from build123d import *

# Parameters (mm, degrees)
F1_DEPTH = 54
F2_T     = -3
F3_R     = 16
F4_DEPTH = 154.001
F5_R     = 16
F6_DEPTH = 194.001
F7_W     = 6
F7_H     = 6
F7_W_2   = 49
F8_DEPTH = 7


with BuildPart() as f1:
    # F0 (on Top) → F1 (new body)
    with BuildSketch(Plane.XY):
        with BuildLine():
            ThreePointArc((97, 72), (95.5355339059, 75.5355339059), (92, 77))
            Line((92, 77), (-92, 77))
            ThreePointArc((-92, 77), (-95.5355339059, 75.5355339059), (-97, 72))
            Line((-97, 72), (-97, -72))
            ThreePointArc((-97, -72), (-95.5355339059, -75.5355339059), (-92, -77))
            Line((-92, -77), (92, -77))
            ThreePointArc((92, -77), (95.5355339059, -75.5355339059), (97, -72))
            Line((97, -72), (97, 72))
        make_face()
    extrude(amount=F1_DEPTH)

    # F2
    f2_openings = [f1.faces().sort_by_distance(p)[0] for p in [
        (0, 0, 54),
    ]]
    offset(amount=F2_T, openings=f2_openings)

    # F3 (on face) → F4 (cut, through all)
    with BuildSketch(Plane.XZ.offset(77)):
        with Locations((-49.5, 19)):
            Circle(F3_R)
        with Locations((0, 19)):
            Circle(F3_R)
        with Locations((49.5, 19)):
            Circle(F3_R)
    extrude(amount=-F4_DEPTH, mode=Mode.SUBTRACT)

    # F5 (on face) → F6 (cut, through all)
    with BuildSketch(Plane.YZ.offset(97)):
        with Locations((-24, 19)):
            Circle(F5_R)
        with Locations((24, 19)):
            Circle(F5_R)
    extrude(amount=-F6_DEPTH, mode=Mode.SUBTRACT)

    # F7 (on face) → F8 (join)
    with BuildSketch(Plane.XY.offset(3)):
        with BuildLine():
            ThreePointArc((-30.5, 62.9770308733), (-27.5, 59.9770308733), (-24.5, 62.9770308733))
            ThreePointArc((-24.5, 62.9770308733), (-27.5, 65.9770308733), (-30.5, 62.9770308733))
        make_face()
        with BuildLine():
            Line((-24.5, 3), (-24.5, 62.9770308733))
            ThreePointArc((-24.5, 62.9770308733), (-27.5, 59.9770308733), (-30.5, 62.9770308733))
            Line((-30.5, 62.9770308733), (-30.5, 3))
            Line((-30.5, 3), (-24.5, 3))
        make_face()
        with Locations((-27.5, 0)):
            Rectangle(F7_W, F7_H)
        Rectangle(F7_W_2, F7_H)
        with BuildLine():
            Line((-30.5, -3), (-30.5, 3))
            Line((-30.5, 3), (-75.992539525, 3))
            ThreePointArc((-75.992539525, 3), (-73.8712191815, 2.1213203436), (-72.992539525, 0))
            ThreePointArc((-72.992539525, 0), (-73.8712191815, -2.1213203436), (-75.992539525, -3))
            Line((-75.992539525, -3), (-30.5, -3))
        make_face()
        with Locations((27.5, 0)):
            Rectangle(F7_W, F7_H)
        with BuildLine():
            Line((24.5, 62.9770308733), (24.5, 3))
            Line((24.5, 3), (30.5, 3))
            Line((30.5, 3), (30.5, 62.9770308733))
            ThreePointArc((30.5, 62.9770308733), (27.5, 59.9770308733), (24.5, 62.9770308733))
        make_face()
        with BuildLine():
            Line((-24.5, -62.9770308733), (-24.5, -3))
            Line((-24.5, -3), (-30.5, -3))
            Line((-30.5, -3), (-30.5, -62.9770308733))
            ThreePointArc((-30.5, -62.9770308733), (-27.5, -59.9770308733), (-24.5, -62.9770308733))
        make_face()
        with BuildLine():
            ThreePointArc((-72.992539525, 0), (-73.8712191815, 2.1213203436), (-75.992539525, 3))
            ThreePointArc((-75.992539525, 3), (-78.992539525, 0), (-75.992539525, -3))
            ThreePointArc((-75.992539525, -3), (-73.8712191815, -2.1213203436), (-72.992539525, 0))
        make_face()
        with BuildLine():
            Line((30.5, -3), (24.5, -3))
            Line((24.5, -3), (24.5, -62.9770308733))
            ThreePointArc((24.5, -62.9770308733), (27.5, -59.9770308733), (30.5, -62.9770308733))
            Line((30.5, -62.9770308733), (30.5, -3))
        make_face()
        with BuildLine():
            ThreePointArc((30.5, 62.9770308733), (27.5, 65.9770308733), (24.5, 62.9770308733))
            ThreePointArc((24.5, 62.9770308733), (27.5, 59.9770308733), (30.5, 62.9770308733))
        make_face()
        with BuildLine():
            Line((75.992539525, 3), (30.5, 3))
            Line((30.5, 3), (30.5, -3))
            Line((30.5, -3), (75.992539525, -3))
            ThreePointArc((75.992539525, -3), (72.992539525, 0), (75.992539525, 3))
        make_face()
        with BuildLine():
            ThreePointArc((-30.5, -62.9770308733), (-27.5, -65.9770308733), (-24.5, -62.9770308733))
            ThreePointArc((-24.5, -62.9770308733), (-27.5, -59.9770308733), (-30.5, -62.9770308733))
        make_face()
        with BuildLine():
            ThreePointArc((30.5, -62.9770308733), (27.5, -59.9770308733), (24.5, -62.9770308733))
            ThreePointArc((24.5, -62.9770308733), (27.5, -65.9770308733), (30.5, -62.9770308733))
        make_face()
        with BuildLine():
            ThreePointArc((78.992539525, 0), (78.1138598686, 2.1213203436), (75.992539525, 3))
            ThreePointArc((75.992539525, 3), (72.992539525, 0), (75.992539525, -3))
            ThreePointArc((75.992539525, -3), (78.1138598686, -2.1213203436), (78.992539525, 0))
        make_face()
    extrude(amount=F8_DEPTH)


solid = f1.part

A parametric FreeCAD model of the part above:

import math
import FreeCAD as App
import Part
import Sketcher

V = App.Vector


def faces_at(feature, points):
    """Names of the faces that lie closest to the given points."""
    faces = feature.Shape.Faces
    near = lambda p: min(range(len(faces)), key=lambda i: faces[i].distToShape(Part.Vertex(*p))[0])
    return sorted({f"Face{near(p) + 1}" for p in points})

doc = App.newDocument("Part")
params = doc.addObject("Spreadsheet::Sheet", "Params")
for row, (alias, value) in enumerate([
    ("sketch1_radius", "5 mm"),
    ("sketch1_width", "184 mm"),
    ("sketch1_height", "144 mm"),
    ("pad1_length", "54 mm"),
    ("thickness_wall", "3 mm"),
    ("sketch2_diameter", "32 mm"),
    ("sketch3_diameter", "32 mm"),
    ("sketch4_radius", "3 mm"),
    ("sketch4_width", "49 mm"),
    ("pad2_length", "7 mm"),
], start=1):
    params.set(f"A{row}", alias)
    params.set(f"B{row}", "=" + value)
    params.setAlias(f"B{row}", alias)

body = doc.addObject("PartDesign::Body", "Body")

# Sketch on XY plane
sketch1 = body.newObject("Sketcher::SketchObject", "Sketch")
sketch1.AttachmentSupport = (doc.getObject("XY_Plane"), [""])
sketch1.MapMode = "FlatFace"
sketch1.addGeometry(Part.ArcOfCircle(Part.Circle(V(92, 72, 0), V(0, 0, 1), 5), math.radians(0), math.radians(90)), False)
sketch1.addGeometry(Part.LineSegment(V(92, 77, 0), V(-92, 77, 0)), False)
sketch1.addGeometry(Part.ArcOfCircle(Part.Circle(V(-92, 72, 0), V(0, 0, 1), 5), math.radians(90), math.radians(180)), False)
sketch1.addGeometry(Part.LineSegment(V(-97, 72, 0), V(-97, -72, 0)), False)
sketch1.addGeometry(Part.ArcOfCircle(Part.Circle(V(-92, -72, 0), V(0, 0, 1), 5), math.radians(180), math.radians(270)), False)
sketch1.addGeometry(Part.LineSegment(V(-92, -77, 0), V(92, -77, 0)), False)
sketch1.addGeometry(Part.ArcOfCircle(Part.Circle(V(92, -72, 0), V(0, 0, 1), 5), math.radians(-90), math.radians(0)), False)
sketch1.addGeometry(Part.LineSegment(V(97, -72, 0), V(97, 72, 0)), False)
sketch1.addConstraint(Sketcher.Constraint("Tangent", 0, 2, 1, 1))
sketch1.addConstraint(Sketcher.Constraint("Tangent", 1, 2, 2, 1))
sketch1.addConstraint(Sketcher.Constraint("Tangent", 2, 2, 3, 1))
sketch1.addConstraint(Sketcher.Constraint("Tangent", 3, 2, 4, 1))
sketch1.addConstraint(Sketcher.Constraint("Tangent", 4, 2, 5, 1))
sketch1.addConstraint(Sketcher.Constraint("Tangent", 5, 2, 6, 1))
sketch1.addConstraint(Sketcher.Constraint("Tangent", 6, 2, 7, 1))
sketch1.addConstraint(Sketcher.Constraint("Tangent", 7, 2, 0, 1))
sketch1.addConstraint(Sketcher.Constraint("Horizontal", 1))
sketch1.addConstraint(Sketcher.Constraint("Vertical", 3))
sketch1.addConstraint(Sketcher.Constraint("Horizontal", 5))
sketch1.addConstraint(Sketcher.Constraint("Vertical", 7))
sketch1.addConstraint(Sketcher.Constraint("Equal", 0, 2))
sketch1.addConstraint(Sketcher.Constraint("Equal", 2, 4))
sketch1.addConstraint(Sketcher.Constraint("Equal", 4, 6))
sketch1.addConstraint(Sketcher.Constraint("Symmetric", 0, 3, 4, 3, -1, 1))
sketch1.addConstraint(Sketcher.Constraint("Radius", 0, 5.0))
sketch1.addConstraint(Sketcher.Constraint("DistanceX", 1, 2, 1, 1, 184.0))
sketch1.addConstraint(Sketcher.Constraint("DistanceY", 3, 2, 3, 1, 144.0))
sketch1.setExpression("Constraints[16]", "Params.sketch1_radius")
sketch1.setExpression("Constraints[17]", "Params.sketch1_width")
sketch1.setExpression("Constraints[18]", "Params.sketch1_height")
pad1 = body.newObject("PartDesign::Pad", "Pad")
pad1.Profile = sketch1
pad1.setExpression("Length", "Params.pad1_length")
doc.recompute()

thickness = body.newObject("PartDesign::Thickness", "Thickness")
thickness.Base = (pad1, faces_at(pad1, [(0, 0, 54)]))
thickness.setExpression("Value", "Params.thickness_wall")
thickness.Reversed = True
thickness.Join = "Arc"

# Sketch on XZ plane
sketch2 = body.newObject("Sketcher::SketchObject", "Sketch001")
sketch2.AttachmentSupport = (doc.getObject("XZ_Plane"), [""])
sketch2.MapMode = "FlatFace"
sketch2.AttachmentOffset = App.Placement(V(0, 0, 77), App.Rotation())
sketch2.addGeometry(Part.Circle(V(-49.5, 19, 0), V(0, 0, 1), 16), False)
sketch2.addGeometry(Part.Circle(V(0, 19, 0), V(0, 0, 1), 16), False)
sketch2.addGeometry(Part.Circle(V(49.5, 19, 0), V(0, 0, 1), 16), False)
sketch2.addConstraint(Sketcher.Constraint("Equal", 0, 1))
sketch2.addConstraint(Sketcher.Constraint("Equal", 1, 2))
sketch2.addConstraint(Sketcher.Constraint("Symmetric", 0, 3, 2, 3, -2))
sketch2.addConstraint(Sketcher.Constraint("PointOnObject", 1, 3, -2))
sketch2.addConstraint(Sketcher.Constraint("Horizontal", 0, 3, 1, 3))
sketch2.addConstraint(Sketcher.Constraint("Diameter", 0, 32.0))
sketch2.addConstraint(Sketcher.Constraint("DistanceY", -1, 1, 0, 3, 19.0))
sketch2.addConstraint(Sketcher.Constraint("DistanceX", 0, 3, 2, 3, 99.0))
sketch2.setExpression("Constraints[5]", "Params.sketch2_diameter")
pocket1 = body.newObject("PartDesign::Pocket", "Pocket")
pocket1.Profile = sketch2
pocket1.Type = "ThroughAll"

# Sketch on YZ plane
sketch3 = body.newObject("Sketcher::SketchObject", "Sketch002")
sketch3.AttachmentSupport = (doc.getObject("YZ_Plane"), [""])
sketch3.MapMode = "FlatFace"
sketch3.AttachmentOffset = App.Placement(V(0, 0, 97), App.Rotation())
sketch3.addGeometry(Part.Circle(V(-24, 19, 0), V(0, 0, 1), 16), False)
sketch3.addGeometry(Part.Circle(V(24, 19, 0), V(0, 0, 1), 16), False)
sketch3.addConstraint(Sketcher.Constraint("Equal", 0, 1))
sketch3.addConstraint(Sketcher.Constraint("Symmetric", 0, 3, 1, 3, -2))
sketch3.addConstraint(Sketcher.Constraint("Diameter", 0, 32.0))
sketch3.addConstraint(Sketcher.Constraint("DistanceX", 0, 3, -1, 1, 24.0))
sketch3.addConstraint(Sketcher.Constraint("DistanceY", -1, 1, 0, 3, 19.0))
sketch3.setExpression("Constraints[2]", "Params.sketch3_diameter")
pocket2 = body.newObject("PartDesign::Pocket", "Pocket001")
pocket2.Profile = sketch3
pocket2.Type = "ThroughAll"

# Sketch on XY plane
sketch4 = body.newObject("Sketcher::SketchObject", "Sketch003")
sketch4.AttachmentSupport = (doc.getObject("XY_Plane"), [""])
sketch4.MapMode = "FlatFace"
sketch4.AttachmentOffset = App.Placement(V(0, 0, 3), App.Rotation())
sketch4.addGeometry(Part.ArcOfCircle(Part.Circle(V(-27.5, 62.977031, 0), V(0, 0, 1), 3), math.radians(0), math.radians(180)), False)
sketch4.addGeometry(Part.LineSegment(V(-30.5, 62.977031, 0), V(-30.5, 3, 0)), False)
sketch4.addGeometry(Part.LineSegment(V(-30.5, 3, 0), V(-75.99254, 3, 0)), False)
sketch4.addGeometry(Part.ArcOfCircle(Part.Circle(V(-75.99254, 0, 0), V(0, 0, 1), 3), math.radians(90), math.radians(270)), False)
sketch4.addGeometry(Part.LineSegment(V(-75.99254, -3, 0), V(-30.5, -3, 0)), False)
sketch4.addGeometry(Part.LineSegment(V(-30.5, -3, 0), V(-30.5, -62.977031, 0)), False)
sketch4.addGeometry(Part.ArcOfCircle(Part.Circle(V(-27.5, -62.977031, 0), V(0, 0, 1), 3), math.radians(180), math.radians(360)), False)
sketch4.addGeometry(Part.LineSegment(V(-24.5, -62.977031, 0), V(-24.5, -3, 0)), False)
sketch4.addGeometry(Part.LineSegment(V(-24.5, -3, 0), V(24.5, -3, 0)), False)
sketch4.addGeometry(Part.LineSegment(V(24.5, -3, 0), V(24.5, -62.977031, 0)), False)
sketch4.addGeometry(Part.ArcOfCircle(Part.Circle(V(27.5, -62.977031, 0), V(0, 0, 1), 3), math.radians(180), math.radians(360)), False)
sketch4.addGeometry(Part.LineSegment(V(30.5, -62.977031, 0), V(30.5, -3, 0)), False)
sketch4.addGeometry(Part.LineSegment(V(30.5, -3, 0), V(75.99254, -3, 0)), False)
sketch4.addGeometry(Part.ArcOfCircle(Part.Circle(V(75.99254, 0, 0), V(0, 0, 1), 3), math.radians(-90), math.radians(0)), False)
sketch4.addGeometry(Part.ArcOfCircle(Part.Circle(V(75.99254, 0, 0), V(0, 0, 1), 3), math.radians(0), math.radians(90)), False)
sketch4.addGeometry(Part.LineSegment(V(75.99254, 3, 0), V(30.5, 3, 0)), False)
sketch4.addGeometry(Part.LineSegment(V(30.5, 3, 0), V(30.5, 62.977031, 0)), False)
sketch4.addGeometry(Part.ArcOfCircle(Part.Circle(V(27.5, 62.977031, 0), V(0, 0, 1), 3), math.radians(0), math.radians(180)), False)
sketch4.addGeometry(Part.LineSegment(V(24.5, 62.977031, 0), V(24.5, 3, 0)), False)
sketch4.addGeometry(Part.LineSegment(V(24.5, 3, 0), V(-24.5, 3, 0)), False)
sketch4.addGeometry(Part.LineSegment(V(-24.5, 3, 0), V(-24.5, 62.977031, 0)), False)
sketch4.addConstraint(Sketcher.Constraint("Tangent", 0, 2, 1, 1))
sketch4.addConstraint(Sketcher.Constraint("Coincident", 1, 2, 2, 1))
sketch4.addConstraint(Sketcher.Constraint("Tangent", 2, 2, 3, 1))
sketch4.addConstraint(Sketcher.Constraint("Tangent", 3, 2, 4, 1))
sketch4.addConstraint(Sketcher.Constraint("Coincident", 4, 2, 5, 1))
sketch4.addConstraint(Sketcher.Constraint("Tangent", 5, 2, 6, 1))
sketch4.addConstraint(Sketcher.Constraint("Tangent", 6, 2, 7, 1))
sketch4.addConstraint(Sketcher.Constraint("Coincident", 7, 2, 8, 1))
sketch4.addConstraint(Sketcher.Constraint("Coincident", 8, 2, 9, 1))
sketch4.addConstraint(Sketcher.Constraint("Tangent", 9, 2, 10, 1))
sketch4.addConstraint(Sketcher.Constraint("Tangent", 10, 2, 11, 1))
sketch4.addConstraint(Sketcher.Constraint("Coincident", 11, 2, 12, 1))
sketch4.addConstraint(Sketcher.Constraint("Tangent", 12, 2, 13, 1))
sketch4.addConstraint(Sketcher.Constraint("Tangent", 13, 2, 14, 1))
sketch4.addConstraint(Sketcher.Constraint("Tangent", 14, 2, 15, 1))
sketch4.addConstraint(Sketcher.Constraint("Coincident", 15, 2, 16, 1))
sketch4.addConstraint(Sketcher.Constraint("Tangent", 16, 2, 17, 1))
sketch4.addConstraint(Sketcher.Constraint("Tangent", 17, 2, 18, 1))
sketch4.addConstraint(Sketcher.Constraint("Coincident", 18, 2, 19, 1))
sketch4.addConstraint(Sketcher.Constraint("Coincident", 19, 2, 20, 1))
sketch4.addConstraint(Sketcher.Constraint("Tangent", 20, 2, 0, 1))
sketch4.addConstraint(Sketcher.Constraint("Vertical", 1))
sketch4.addConstraint(Sketcher.Constraint("Horizontal", 2))
sketch4.addConstraint(Sketcher.Constraint("Horizontal", 4))
sketch4.addConstraint(Sketcher.Constraint("Vertical", 5))
sketch4.addConstraint(Sketcher.Constraint("Vertical", 7))
sketch4.addConstraint(Sketcher.Constraint("Horizontal", 8))
sketch4.addConstraint(Sketcher.Constraint("Vertical", 9))
sketch4.addConstraint(Sketcher.Constraint("Vertical", 11))
sketch4.addConstraint(Sketcher.Constraint("Horizontal", 12))
sketch4.addConstraint(Sketcher.Constraint("Horizontal", 15))
sketch4.addConstraint(Sketcher.Constraint("Vertical", 16))
sketch4.addConstraint(Sketcher.Constraint("Vertical", 18))
sketch4.addConstraint(Sketcher.Constraint("Horizontal", 19))
sketch4.addConstraint(Sketcher.Constraint("Vertical", 20))
sketch4.addConstraint(Sketcher.Constraint("Equal", 0, 3))
sketch4.addConstraint(Sketcher.Constraint("Equal", 3, 6))
sketch4.addConstraint(Sketcher.Constraint("Equal", 6, 10))
sketch4.addConstraint(Sketcher.Constraint("Equal", 10, 13))
sketch4.addConstraint(Sketcher.Constraint("Equal", 13, 14))
sketch4.addConstraint(Sketcher.Constraint("Equal", 14, 17))
sketch4.addConstraint(Sketcher.Constraint("Symmetric", 0, 3, 10, 3, -1, 1))
sketch4.addConstraint(Sketcher.Constraint("Symmetric", 3, 3, 13, 3, -1, 1))
sketch4.addConstraint(Sketcher.Constraint("Symmetric", 6, 3, 17, 3, -1, 1))
sketch4.addConstraint(Sketcher.Constraint("Symmetric", 6, 3, 10, 3, -2))
sketch4.addConstraint(Sketcher.Constraint("PointOnObject", 3, 3, -1))
sketch4.addConstraint(Sketcher.Constraint("PointOnObject", 13, 2, -1))
sketch4.addConstraint(Sketcher.Constraint("Horizontal", 4, 2, 7, 2))
sketch4.addConstraint(Sketcher.Constraint("Horizontal", 15, 2, 18, 2))
sketch4.addConstraint(Sketcher.Constraint("Radius", 0, 3.0))
sketch4.addConstraint(Sketcher.Constraint("DistanceX", 8, 1, 8, 2, 49.0))
sketch4.addConstraint(Sketcher.Constraint("DistanceX", 2, 2, 2, 1, 45.49254))
sketch4.addConstraint(Sketcher.Constraint("DistanceY", 1, 2, 1, 1, 59.977031))
sketch4.setExpression("Constraints[49]", "Params.sketch4_radius")
sketch4.setExpression("Constraints[50]", "Params.sketch4_width")
pad2 = body.newObject("PartDesign::Pad", "Pad001")
pad2.Profile = sketch4
pad2.setExpression("Length", "Params.pad2_length")

doc.recompute()
